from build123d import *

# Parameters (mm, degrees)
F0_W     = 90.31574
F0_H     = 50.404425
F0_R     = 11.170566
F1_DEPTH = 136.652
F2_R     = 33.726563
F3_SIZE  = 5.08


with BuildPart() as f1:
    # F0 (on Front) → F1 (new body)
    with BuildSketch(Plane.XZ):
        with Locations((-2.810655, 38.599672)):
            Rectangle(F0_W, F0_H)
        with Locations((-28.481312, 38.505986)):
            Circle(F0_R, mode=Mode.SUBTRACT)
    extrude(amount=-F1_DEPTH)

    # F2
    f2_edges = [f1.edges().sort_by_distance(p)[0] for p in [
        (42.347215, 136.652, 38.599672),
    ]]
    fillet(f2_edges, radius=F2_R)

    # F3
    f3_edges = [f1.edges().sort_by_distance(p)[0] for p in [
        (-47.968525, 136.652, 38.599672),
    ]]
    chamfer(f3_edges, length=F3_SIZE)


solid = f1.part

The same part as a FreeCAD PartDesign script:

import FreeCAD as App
import Part
import Sketcher
from FreeCAD import Vector
Q = App.Units.Quantity


def edges_at(feature, points):
    """Names of the edges that pass closest to the given points."""
    edges = feature.Shape.Edges
    near = lambda p: min(range(len(edges)), key=lambda i: edges[i].distToShape(Part.Vertex(*p))[0])
    return sorted({f"Edge{near(p) + 1}" for p in points})


def add_polygon(sketch, points):
    """Adds a closed chain of lines whose ends are joined by coincident constraints."""
    first, n = sketch.GeometryCount, len(points)
    for a, b in zip(points, points[1:] + points[:1]):
        sketch.addGeometry(Part.LineSegment(App.Vector(*a, 0), App.Vector(*b, 0)), False)
    for i in range(n):
        sketch.addConstraint(Sketcher.Constraint("Coincident", first + i, 2, first + (i + 1) % n, 1))

doc = App.newDocument("Part")
params = doc.addObject("Spreadsheet::Sheet", "Params")
for row, (alias, value) in enumerate([
    ("pad1_length", "5.38 in"),
    ("fillet_radius", "33.726563 mm"),
    ("chamfer_size", "0.2 in"),
], start=1):
    params.set(f"A{row}", alias)
    params.set(f"B{row}", "=" + value)
    params.setAlias(f"B{row}", alias)

body = doc.addObject("PartDesign::Body", "Body")

# Sketch on XZ plane
sketch1 = body.newObject("Sketcher::SketchObject", "Sketch")
sketch1.AttachmentSupport = (doc.getObject("XZ_Plane"), [""])
sketch1.MapMode = "FlatFace"
add_polygon(sketch1, [(-48, 64), (-48, 13), (42, 13), (42, 64)])  # lines 0-3
sketch1.addGeometry(Part.Circle(Vector(-28, 39, 0), Vector(0, 0, 1), 11), False)  # 4
sketch1.addConstraint([
    Sketcher.Constraint("Vertical", 0),
    Sketcher.Constraint("Horizontal", 1),
    Sketcher.Constraint("Vertical", 2),
    Sketcher.Constraint("Horizontal", 3),
    Sketcher.Constraint("Diameter", 4, Q("22.341132 mm")),
    Sketcher.Constraint("DistanceX", 1, 1, 1, 2, Q("90.31574 mm")),
    Sketcher.Constraint("DistanceY", 4, 3, 2, 2, Q("25.295898 mm")),
    Sketcher.Constraint("DistanceY", 0, 2, 0, 1, Q("50.404425 mm")),
    Sketcher.Constraint("DistanceX", 4, 3, -1, 1, Q("28.481312 mm")),
    Sketcher.Constraint("DistanceY", -1, 1, 0, 2, Q("13.39746 mm")),
    Sketcher.Constraint("DistanceX", 0, 2, -1, 1, Q("47.968525 mm")),
])
pad1 = body.newObject("PartDesign::Pad", "Pad")
pad1.Profile = sketch1
pad1.setExpression("Length", "Params.pad1_length")
pad1.Reversed = True
doc.recompute()

fillet = body.newObject("PartDesign::Fillet", "Fillet")
fillet.Base = (pad1, edges_at(pad1, [(42.347, 136.652, 38.6)]))
fillet.setExpression("Radius", "Params.fillet_radius")
doc.recompute()

chamfer = body.newObject("PartDesign::Chamfer", "Chamfer")
chamfer.Base = (fillet, edges_at(fillet, [(-47.969, 136.652, 38.6)]))
chamfer.setExpression("Size", "Params.chamfer_size")

doc.recompute()
